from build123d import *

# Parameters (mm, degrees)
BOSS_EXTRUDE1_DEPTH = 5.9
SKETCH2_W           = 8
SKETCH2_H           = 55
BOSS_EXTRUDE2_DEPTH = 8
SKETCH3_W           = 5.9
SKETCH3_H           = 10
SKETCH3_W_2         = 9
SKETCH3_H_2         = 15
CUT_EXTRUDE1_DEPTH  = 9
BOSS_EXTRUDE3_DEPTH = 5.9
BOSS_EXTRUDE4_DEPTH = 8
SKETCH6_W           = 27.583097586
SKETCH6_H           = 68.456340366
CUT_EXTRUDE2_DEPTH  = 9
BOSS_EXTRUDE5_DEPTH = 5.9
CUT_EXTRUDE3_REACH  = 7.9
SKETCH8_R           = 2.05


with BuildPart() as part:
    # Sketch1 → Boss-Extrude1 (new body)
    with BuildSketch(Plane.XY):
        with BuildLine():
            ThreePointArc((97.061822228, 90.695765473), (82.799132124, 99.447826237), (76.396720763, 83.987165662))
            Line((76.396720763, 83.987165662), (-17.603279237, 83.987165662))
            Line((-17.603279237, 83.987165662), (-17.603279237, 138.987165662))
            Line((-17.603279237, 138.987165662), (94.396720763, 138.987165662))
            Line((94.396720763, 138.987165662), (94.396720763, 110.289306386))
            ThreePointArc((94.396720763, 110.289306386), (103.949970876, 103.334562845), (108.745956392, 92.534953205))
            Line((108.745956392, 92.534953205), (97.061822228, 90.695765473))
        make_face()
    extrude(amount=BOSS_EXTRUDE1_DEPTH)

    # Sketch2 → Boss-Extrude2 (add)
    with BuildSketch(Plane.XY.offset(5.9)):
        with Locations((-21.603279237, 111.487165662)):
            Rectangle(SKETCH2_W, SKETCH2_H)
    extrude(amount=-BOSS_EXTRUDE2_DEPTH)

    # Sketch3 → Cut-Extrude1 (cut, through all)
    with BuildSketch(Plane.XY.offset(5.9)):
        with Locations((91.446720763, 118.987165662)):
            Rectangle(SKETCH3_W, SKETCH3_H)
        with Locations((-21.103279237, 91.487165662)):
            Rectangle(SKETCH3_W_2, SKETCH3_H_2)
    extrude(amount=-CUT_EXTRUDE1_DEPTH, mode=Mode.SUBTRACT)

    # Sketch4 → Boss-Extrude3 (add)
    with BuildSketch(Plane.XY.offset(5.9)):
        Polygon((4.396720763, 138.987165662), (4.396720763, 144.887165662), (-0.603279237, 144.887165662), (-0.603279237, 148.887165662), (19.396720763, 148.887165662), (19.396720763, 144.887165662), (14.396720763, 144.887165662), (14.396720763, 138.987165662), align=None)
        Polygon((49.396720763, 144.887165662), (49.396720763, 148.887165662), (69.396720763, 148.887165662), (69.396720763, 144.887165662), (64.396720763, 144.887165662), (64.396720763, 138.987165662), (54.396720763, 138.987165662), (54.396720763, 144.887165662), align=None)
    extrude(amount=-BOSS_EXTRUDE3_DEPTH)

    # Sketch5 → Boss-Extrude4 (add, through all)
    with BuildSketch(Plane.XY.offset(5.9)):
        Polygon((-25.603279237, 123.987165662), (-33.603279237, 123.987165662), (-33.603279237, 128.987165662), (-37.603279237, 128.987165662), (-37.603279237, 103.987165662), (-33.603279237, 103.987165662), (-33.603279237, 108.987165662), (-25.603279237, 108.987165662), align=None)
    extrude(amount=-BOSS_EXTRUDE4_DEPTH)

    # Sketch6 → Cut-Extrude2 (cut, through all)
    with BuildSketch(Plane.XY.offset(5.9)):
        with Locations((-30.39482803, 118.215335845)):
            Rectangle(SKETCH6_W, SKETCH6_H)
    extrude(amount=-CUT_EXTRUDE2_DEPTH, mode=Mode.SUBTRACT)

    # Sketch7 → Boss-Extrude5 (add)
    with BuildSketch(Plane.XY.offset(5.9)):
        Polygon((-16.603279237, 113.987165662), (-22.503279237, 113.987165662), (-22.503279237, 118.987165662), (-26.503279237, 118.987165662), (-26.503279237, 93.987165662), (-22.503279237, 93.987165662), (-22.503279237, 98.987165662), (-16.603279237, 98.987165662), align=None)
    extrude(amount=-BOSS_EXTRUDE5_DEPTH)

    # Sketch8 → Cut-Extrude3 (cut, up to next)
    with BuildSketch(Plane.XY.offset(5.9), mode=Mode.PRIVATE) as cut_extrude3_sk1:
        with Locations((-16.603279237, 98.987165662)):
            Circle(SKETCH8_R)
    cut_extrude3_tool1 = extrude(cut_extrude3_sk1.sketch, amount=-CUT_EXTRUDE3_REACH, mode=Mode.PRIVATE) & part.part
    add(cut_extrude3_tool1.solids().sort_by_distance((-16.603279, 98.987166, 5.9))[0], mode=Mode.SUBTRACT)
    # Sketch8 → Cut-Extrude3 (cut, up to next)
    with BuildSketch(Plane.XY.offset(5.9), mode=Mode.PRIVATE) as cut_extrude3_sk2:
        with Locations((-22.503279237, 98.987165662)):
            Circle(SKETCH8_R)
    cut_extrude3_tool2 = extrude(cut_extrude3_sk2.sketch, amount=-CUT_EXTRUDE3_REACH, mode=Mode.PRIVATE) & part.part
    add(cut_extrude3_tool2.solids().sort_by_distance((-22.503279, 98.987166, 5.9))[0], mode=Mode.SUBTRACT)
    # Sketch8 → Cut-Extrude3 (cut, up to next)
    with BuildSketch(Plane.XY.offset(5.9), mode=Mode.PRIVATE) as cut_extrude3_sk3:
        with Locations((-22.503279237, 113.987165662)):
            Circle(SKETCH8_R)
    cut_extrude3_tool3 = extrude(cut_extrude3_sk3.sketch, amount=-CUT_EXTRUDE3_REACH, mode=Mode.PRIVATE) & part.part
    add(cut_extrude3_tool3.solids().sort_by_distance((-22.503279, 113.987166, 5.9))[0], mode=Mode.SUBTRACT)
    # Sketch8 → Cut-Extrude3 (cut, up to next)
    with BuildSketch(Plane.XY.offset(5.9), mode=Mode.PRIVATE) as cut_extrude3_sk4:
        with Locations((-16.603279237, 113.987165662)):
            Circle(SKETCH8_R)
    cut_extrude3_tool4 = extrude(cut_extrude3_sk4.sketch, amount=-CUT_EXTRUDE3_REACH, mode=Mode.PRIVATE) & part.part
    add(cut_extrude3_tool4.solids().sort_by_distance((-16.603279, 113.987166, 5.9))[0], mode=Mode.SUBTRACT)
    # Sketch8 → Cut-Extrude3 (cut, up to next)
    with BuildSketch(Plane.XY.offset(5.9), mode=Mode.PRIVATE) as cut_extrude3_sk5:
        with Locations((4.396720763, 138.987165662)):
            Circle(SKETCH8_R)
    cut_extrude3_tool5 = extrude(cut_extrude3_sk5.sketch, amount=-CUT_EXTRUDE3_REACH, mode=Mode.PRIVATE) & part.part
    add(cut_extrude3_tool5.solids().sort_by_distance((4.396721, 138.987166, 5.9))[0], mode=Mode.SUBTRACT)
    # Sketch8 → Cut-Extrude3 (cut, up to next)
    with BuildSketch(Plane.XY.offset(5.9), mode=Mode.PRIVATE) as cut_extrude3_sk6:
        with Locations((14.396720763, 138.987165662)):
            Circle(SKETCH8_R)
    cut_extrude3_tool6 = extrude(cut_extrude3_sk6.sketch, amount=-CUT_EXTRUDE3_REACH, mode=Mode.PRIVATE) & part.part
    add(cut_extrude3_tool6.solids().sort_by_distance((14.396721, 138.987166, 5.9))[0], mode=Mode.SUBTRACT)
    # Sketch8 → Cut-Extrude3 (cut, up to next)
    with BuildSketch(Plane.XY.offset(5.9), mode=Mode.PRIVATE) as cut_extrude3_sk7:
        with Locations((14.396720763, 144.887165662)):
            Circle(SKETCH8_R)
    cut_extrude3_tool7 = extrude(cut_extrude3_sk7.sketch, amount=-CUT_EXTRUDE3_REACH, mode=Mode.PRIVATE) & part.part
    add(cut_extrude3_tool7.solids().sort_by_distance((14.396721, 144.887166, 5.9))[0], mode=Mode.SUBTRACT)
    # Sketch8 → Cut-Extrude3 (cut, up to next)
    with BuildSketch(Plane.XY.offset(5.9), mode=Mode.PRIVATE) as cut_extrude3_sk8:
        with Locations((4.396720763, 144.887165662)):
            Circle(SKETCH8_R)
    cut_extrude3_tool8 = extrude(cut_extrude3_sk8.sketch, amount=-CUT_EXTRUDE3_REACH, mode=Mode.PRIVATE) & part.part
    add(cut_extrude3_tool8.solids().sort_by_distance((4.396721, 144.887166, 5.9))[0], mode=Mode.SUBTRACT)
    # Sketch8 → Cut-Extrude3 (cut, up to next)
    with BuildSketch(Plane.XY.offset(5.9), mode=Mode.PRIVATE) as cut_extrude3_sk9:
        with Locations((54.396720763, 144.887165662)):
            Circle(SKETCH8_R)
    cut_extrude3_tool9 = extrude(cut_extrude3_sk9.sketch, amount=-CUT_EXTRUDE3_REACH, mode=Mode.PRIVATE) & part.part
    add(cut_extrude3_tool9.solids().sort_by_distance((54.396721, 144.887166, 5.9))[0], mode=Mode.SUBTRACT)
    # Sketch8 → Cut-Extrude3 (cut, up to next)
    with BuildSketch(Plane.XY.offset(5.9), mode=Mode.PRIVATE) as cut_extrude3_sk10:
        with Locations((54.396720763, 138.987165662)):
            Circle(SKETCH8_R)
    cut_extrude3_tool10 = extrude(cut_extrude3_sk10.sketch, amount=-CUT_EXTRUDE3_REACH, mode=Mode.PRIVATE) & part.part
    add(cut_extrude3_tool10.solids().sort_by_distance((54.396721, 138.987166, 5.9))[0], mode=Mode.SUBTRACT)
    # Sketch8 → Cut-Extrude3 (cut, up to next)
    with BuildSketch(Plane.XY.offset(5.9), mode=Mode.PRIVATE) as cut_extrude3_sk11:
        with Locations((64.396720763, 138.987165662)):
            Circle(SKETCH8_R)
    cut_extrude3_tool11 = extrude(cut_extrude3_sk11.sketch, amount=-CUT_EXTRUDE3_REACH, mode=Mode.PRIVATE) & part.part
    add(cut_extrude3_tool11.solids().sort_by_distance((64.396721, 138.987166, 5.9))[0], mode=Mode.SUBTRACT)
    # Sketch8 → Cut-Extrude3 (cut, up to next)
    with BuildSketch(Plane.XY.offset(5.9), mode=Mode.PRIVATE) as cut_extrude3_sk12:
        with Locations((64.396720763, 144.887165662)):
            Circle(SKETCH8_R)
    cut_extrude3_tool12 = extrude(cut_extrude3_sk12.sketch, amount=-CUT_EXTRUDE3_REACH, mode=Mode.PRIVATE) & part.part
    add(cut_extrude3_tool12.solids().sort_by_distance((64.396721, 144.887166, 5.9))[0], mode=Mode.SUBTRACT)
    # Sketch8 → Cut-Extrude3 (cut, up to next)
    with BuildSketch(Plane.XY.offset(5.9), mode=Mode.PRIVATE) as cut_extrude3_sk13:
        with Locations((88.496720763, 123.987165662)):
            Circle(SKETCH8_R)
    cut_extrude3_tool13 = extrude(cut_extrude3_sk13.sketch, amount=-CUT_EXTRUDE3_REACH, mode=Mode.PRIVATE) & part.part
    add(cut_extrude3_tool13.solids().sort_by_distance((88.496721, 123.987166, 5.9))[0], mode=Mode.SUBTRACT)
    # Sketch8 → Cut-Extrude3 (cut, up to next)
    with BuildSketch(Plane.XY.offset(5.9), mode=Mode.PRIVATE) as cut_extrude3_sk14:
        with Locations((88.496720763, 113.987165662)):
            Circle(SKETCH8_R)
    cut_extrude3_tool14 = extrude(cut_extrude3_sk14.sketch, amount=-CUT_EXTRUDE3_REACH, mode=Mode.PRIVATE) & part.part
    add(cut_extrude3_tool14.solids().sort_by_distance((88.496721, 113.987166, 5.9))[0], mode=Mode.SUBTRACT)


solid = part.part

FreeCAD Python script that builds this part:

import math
import FreeCAD as App
import Part
import Sketcher

V = App.Vector


def add_polygon(sketch, points):
    """Adds a closed chain of lines whose ends are joined by coincident constraints."""
    first, n = sketch.GeometryCount, len(points)
    for a, b in zip(points, points[1:] + points[:1]):
        sketch.addGeometry(Part.LineSegment(App.Vector(*a, 0), App.Vector(*b, 0)), False)
    for i in range(n):
        sketch.addConstraint(Sketcher.Constraint("Coincident", first + i, 2, first + (i + 1) % n, 1))

doc = App.newDocument("Part")
body = doc.addObject("PartDesign::Body", "Body")

sketch1 = doc.addObject("Sketcher::SketchObject", "Sketch")
body.addObject(sketch1)
sketch1.AttachmentSupport = (doc.XY_Plane, [""])
sketch1.MapMode = "FlatFace"
sketch1.addGeometry(Part.ArcOfCircle(Part.Circle(V(86, 89, 0), V(0, 0, 1), 11), math.radians(9), math.radians(207)), False)
sketch1.addGeometry(Part.LineSegment(V(97, 91, 0), V(109, 93, 0)), False)
sketch1.addGeometry(Part.ArcOfCircle(Part.Circle(V(86, 89, 0), V(0, 0, 1), 23), math.radians(9), math.radians(69)), False)
sketch1.addGeometry(Part.LineSegment(V(94, 110, 0), V(94, 139, 0)), False)
sketch1.addGeometry(Part.LineSegment(V(94, 139, 0), V(-18, 139, 0)), False)
sketch1.addGeometry(Part.LineSegment(V(-18, 139, 0), V(-18, 84, 0)), False)
sketch1.addGeometry(Part.LineSegment(V(-18, 84, 0), V(76, 84, 0)), False)
sketch1.addConstraint(Sketcher.Constraint("Coincident", 0, 1, 1, 1))
sketch1.addConstraint(Sketcher.Constraint("Coincident", 1, 2, 2, 1))
sketch1.addConstraint(Sketcher.Constraint("Coincident", 2, 2, 3, 1))
sketch1.addConstraint(Sketcher.Constraint("Coincident", 3, 2, 4, 1))
sketch1.addConstraint(Sketcher.Constraint("Coincident", 4, 2, 5, 1))
sketch1.addConstraint(Sketcher.Constraint("Coincident", 5, 2, 6, 1))
sketch1.addConstraint(Sketcher.Constraint("Coincident", 6, 2, 0, 2))
sketch1.addConstraint(Sketcher.Constraint("Vertical", 3))
sketch1.addConstraint(Sketcher.Constraint("Horizontal", 4))
sketch1.addConstraint(Sketcher.Constraint("Vertical", 5))
sketch1.addConstraint(Sketcher.Constraint("Horizontal", 6))
sketch1.addConstraint(Sketcher.Constraint("Coincident", 2, 3, 0, 3))
sketch1.addConstraint(Sketcher.Constraint("Radius", 0, 11.0))
sketch1.addConstraint(Sketcher.Constraint("DistanceX", 4, 2, 4, 1, 112.0))
sketch1.addConstraint(Sketcher.Constraint("DistanceX", 6, 1, 6, 2, 94.0))
sketch1.addConstraint(Sketcher.Constraint("DistanceY", 5, 2, 5, 1, 55.0))
sketch1.addConstraint(Sketcher.Constraint("Radius", 2, 22.828001))
sketch1.addConstraint(Sketcher.Constraint("DistanceY", 3, 1, 3, 2, 28.697859))
sketch1.addConstraint(Sketcher.Constraint("DistanceX", 2, 2, 0, 1, 2.665101))
sketch1.addConstraint(Sketcher.Constraint("DistanceX", -1, 1, 2, 2, 94.396721))
sketch1.addConstraint(Sketcher.Constraint("DistanceX", 0, 3, 1, 2, 22.550339))
sketch1.addConstraint(Sketcher.Constraint("DistanceY", -1, 1, 0, 3, 88.985327))
pad1 = doc.addObject("PartDesign::Pad", "Pad")
body.addObject(pad1)
pad1.Profile = sketch1
pad1.Length = 5.9

sketch2 = doc.addObject("Sketcher::SketchObject", "Sketch001")
body.addObject(sketch2)
sketch2.AttachmentSupport = (doc.XY_Plane, [""])
sketch2.MapMode = "FlatFace"
sketch2.AttachmentOffset = App.Placement(V(0, 0, 5.9), App.Rotation())
add_polygon(sketch2, [(-26, 139), (-26, 84), (-18, 84), (-18, 139)])
sketch2.addConstraint(Sketcher.Constraint("Vertical", 0))
sketch2.addConstraint(Sketcher.Constraint("Horizontal", 1))
sketch2.addConstraint(Sketcher.Constraint("Vertical", 2))
sketch2.addConstraint(Sketcher.Constraint("Horizontal", 3))
sketch2.addConstraint(Sketcher.Constraint("DistanceX", 1, 1, 1, 2, 8.0))
sketch2.addConstraint(Sketcher.Constraint("DistanceY", 0, 2, 0, 1, 55.0))
sketch2.addConstraint(Sketcher.Constraint("DistanceX", 0, 2, -1, 1, 25.603279))
sketch2.addConstraint(Sketcher.Constraint("DistanceY", -1, 1, 0, 2, 83.987166))
pad2 = doc.addObject("PartDesign::Pad", "Pad001")
body.addObject(pad2)
pad2.Profile = sketch2
pad2.Length = 8
pad2.Reversed = True

sketch3 = doc.addObject("Sketcher::SketchObject", "Sketch002")
body.addObject(sketch3)
sketch3.AttachmentSupport = (doc.XY_Plane, [""])
sketch3.MapMode = "FlatFace"
sketch3.AttachmentOffset = App.Placement(V(0, 0, 5.9), App.Rotation())
add_polygon(sketch3, [(88, 124), (88, 114), (94, 114), (94, 124)])
add_polygon(sketch3, [(-26, 99), (-26, 84), (-17, 84), (-17, 99)])
sketch3.addConstraint(Sketcher.Constraint("Vertical", 0))
sketch3.addConstraint(Sketcher.Constraint("Horizontal", 1))
sketch3.addConstraint(Sketcher.Constraint("Vertical", 2))
sketch3.addConstraint(Sketcher.Constraint("Horizontal", 3))
sketch3.addConstraint(Sketcher.Constraint("Vertical", 4))
sketch3.addConstraint(Sketcher.Constraint("Horizontal", 5))
sketch3.addConstraint(Sketcher.Constraint("Vertical", 6))
sketch3.addConstraint(Sketcher.Constraint("Horizontal", 7))
sketch3.addConstraint(Sketcher.Constraint("DistanceX", 5, 1, 5, 2, 9.0))
sketch3.addConstraint(Sketcher.Constraint("DistanceY", 0, 2, 0, 1, 10.0))
sketch3.addConstraint(Sketcher.Constraint("DistanceY", 4, 2, 4, 1, 15.0))
sketch3.addConstraint(Sketcher.Constraint("DistanceX", 1, 1, 1, 2, 5.9))
sketch3.addConstraint(Sketcher.Constraint("DistanceY", 4, 2, 0, 2, 30.0))
sketch3.addConstraint(Sketcher.Constraint("DistanceX", 4, 2, 1, 2, 120.0))
sketch3.addConstraint(Sketcher.Constraint("DistanceX", -1, 1, 0, 2, 88.496721))
sketch3.addConstraint(Sketcher.Constraint("DistanceY", -1, 1, 0, 2, 113.987166))
pocket1 = doc.addObject("PartDesign::Pocket", "Pocket")
body.addObject(pocket1)
pocket1.Profile = sketch3
pocket1.Type = "ThroughAll"

sketch4 = doc.addObject("Sketcher::SketchObject", "Sketch003")
body.addObject(sketch4)
sketch4.AttachmentSupport = (doc.XY_Plane, [""])
sketch4.MapMode = "FlatFace"
sketch4.AttachmentOffset = App.Placement(V(0, 0, 5.9), App.Rotation())
add_polygon(sketch4, [(4.4, 144.9), (4.4, 139), (14.4, 139), (14.4, 144.9), (19.4, 144.9), (19.4, 148.9), (-0.6, 148.9), (-0.6, 144.9)])
add_polygon(sketch4, [(49.4, 148.9), (49.4, 144.9), (54.4, 144.9), (54.4, 139), (64.4, 139), (64.4, 144.9), (69.4, 144.9), (69.4, 148.9)])
sketch4.addConstraint(Sketcher.Constraint("Vertical", 0))
sketch4.addConstraint(Sketcher.Constraint("Horizontal", 1))
sketch4.addConstraint(Sketcher.Constraint("Vertical", 2))
sketch4.addConstraint(Sketcher.Constraint("Horizontal", 3))
sketch4.addConstraint(Sketcher.Constraint("Vertical", 4))
sketch4.addConstraint(Sketcher.Constraint("Horizontal", 5))
sketch4.addConstraint(Sketcher.Constraint("Vertical", 6))
sketch4.addConstraint(Sketcher.Constraint("Horizontal", 7))
sketch4.addConstraint(Sketcher.Constraint("Vertical", 8))
sketch4.addConstraint(Sketcher.Constraint("Horizontal", 9))
sketch4.addConstraint(Sketcher.Constraint("Vertical", 10))
sketch4.addConstraint(Sketcher.Constraint("Horizontal", 11))
sketch4.addConstraint(Sketcher.Constraint("Vertical", 12))
sketch4.addConstraint(Sketcher.Constraint("Horizontal", 13))
sketch4.addConstraint(Sketcher.Constraint("Vertical", 14))
sketch4.addConstraint(Sketcher.Constraint("Horizontal", 15))
sketch4.addConstraint(Sketcher.Constraint("Horizontal", 3, 2, 6, 2))
sketch4.addConstraint(Sketcher.Constraint("Horizontal", 7, 2, 8, 2))
sketch4.addConstraint(Sketcher.Constraint("Horizontal", 1, 2, 10, 2))
sketch4.addConstraint(Sketcher.Constraint("Horizontal", 9, 2, 12, 2))
sketch4.addConstraint(Sketcher.Constraint("Horizontal", 5, 2, 14, 2))
sketch4.addConstraint(Sketcher.Constraint("Equal", 3, 7))
sketch4.addConstraint(Sketcher.Constraint("Equal", 7, 9))
sketch4.addConstraint(Sketcher.Constraint("Equal", 1, 11))
sketch4.addConstraint(Sketcher.Constraint("Equal", 9, 13))
sketch4.addConstraint(Sketcher.Constraint("DistanceX", 1, 1, 1, 2, 10.0))
sketch4.addConstraint(Sketcher.Constraint("DistanceX", 3, 1, 3, 2, 5.0))
sketch4.addConstraint(Sketcher.Constraint("DistanceY", 4, 1, 4, 2, 4.0))
sketch4.addConstraint(Sketcher.Constraint("DistanceY", 0, 2, 0, 1, 5.9))
sketch4.addConstraint(Sketcher.Constraint("DistanceX", 3, 2, 8, 2, 30.0))
sketch4.addConstraint(Sketcher.Constraint("DistanceX", -1, 1, 0, 2, 4.396721))
sketch4.addConstraint(Sketcher.Constraint("DistanceY", -1, 1, 0, 2, 138.987166))
pad3 = doc.addObject("PartDesign::Pad", "Pad002")
body.addObject(pad3)
pad3.Profile = sketch4
pad3.Length = 5.9
pad3.Reversed = True

sketch5 = doc.addObject("Sketcher::SketchObject", "Sketch004")
body.addObject(sketch5)
sketch5.AttachmentSupport = (doc.XY_Plane, [""])
sketch5.MapMode = "FlatFace"
sketch5.AttachmentOffset = App.Placement(V(0, 0, 5.9), App.Rotation())
add_polygon(sketch5, [(-25.6, 124), (-33.6, 124), (-33.6, 129), (-37.6, 129), (-37.6, 104), (-33.6, 104), (-33.6, 109), (-25.6, 109)])
sketch5.addConstraint(Sketcher.Constraint("Horizontal", 0))
sketch5.addConstraint(Sketcher.Constraint("Vertical", 1))
sketch5.addConstraint(Sketcher.Constraint("Horizontal", 2))
sketch5.addConstraint(Sketcher.Constraint("Vertical", 3))
sketch5.addConstraint(Sketcher.Constraint("Horizontal", 4))
sketch5.addConstraint(Sketcher.Constraint("Vertical", 5))
sketch5.addConstraint(Sketcher.Constraint("Horizontal", 6))
sketch5.addConstraint(Sketcher.Constraint("Vertical", 7))
sketch5.addConstraint(Sketcher.Constraint("Vertical", 1, 2, 4, 2))
sketch5.addConstraint(Sketcher.Constraint("Equal", 1, 5))
sketch5.addConstraint(Sketcher.Constraint("DistanceX", 0, 2, 0, 1, 8.0))
sketch5.addConstraint(Sketcher.Constraint("DistanceX", 2, 2, 2, 1, 4.0))
sketch5.addConstraint(Sketcher.Constraint("DistanceY", 1, 1, 1, 2, 5.0))
sketch5.addConstraint(Sketcher.Constraint("DistanceY", 3, 2, 3, 1, 25.0))
sketch5.addConstraint(Sketcher.Constraint("DistanceX", 0, 2, -1, 1, 33.603279))
sketch5.addConstraint(Sketcher.Constraint("DistanceY", -1, 1, 0, 2, 123.987166))
pad4 = doc.addObject("PartDesign::Pad", "Pad003")
body.addObject(pad4)
pad4.Profile = sketch5
pad4.Length = 8
pad4.Reversed = True

sketch6 = doc.addObject("Sketcher::SketchObject", "Sketch005")
body.addObject(sketch6)
sketch6.AttachmentSupport = (doc.XY_Plane, [""])
sketch6.MapMode = "FlatFace"
sketch6.AttachmentOffset = App.Placement(V(0, 0, 5.9), App.Rotation())
add_polygon(sketch6, [(-44, 152), (-44, 84), (-17, 84), (-17, 152)])
sketch6.addConstraint(Sketcher.Constraint("Vertical", 0))
sketch6.addConstraint(Sketcher.Constraint("Horizontal", 1))
sketch6.addConstraint(Sketcher.Constraint("Vertical", 2))
sketch6.addConstraint(Sketcher.Constraint("Horizontal", 3))
sketch6.addConstraint(Sketcher.Constraint("DistanceY", 0, 2, 0, 1, 68.45634))
sketch6.addConstraint(Sketcher.Constraint("DistanceX", 1, 1, 1, 2, 27.583098))
sketch6.addConstraint(Sketcher.Constraint("DistanceX", 1, 2, -1, 1, 16.603279))
sketch6.addConstraint(Sketcher.Constraint("DistanceY", -1, 1, 0, 2, 83.987166))
pocket2 = doc.addObject("PartDesign::Pocket", "Pocket001")
body.addObject(pocket2)
pocket2.Profile = sketch6
pocket2.Type = "ThroughAll"

sketch7 = doc.addObject("Sketcher::SketchObject", "Sketch006")
body.addObject(sketch7)
sketch7.AttachmentSupport = (doc.XY_Plane, [""])
sketch7.MapMode = "FlatFace"
sketch7.AttachmentOffset = App.Placement(V(0, 0, 5.9), App.Rotation())
add_polygon(sketch7, [(-16.6, 114), (-22.5, 114), (-22.5, 119), (-26.5, 119), (-26.5, 94), (-22.5, 94), (-22.5, 99), (-16.6, 99)])
sketch7.addConstraint(Sketcher.Constraint("Horizontal", 0))
sketch7.addConstraint(Sketcher.Constraint("Vertical", 1))
sketch7.addConstraint(Sketcher.Constraint("Horizontal", 2))
sketch7.addConstraint(Sketcher.Constraint("Vertical", 3))
sketch7.addConstraint(Sketcher.Constraint("Horizontal", 4))
sketch7.addConstraint(Sketcher.Constraint("Vertical", 5))
sketch7.addConstraint(Sketcher.Constraint("Horizontal", 6))
sketch7.addConstraint(Sketcher.Constraint("Vertical", 7))
sketch7.addConstraint(Sketcher.Constraint("Vertical", 1, 2, 4, 2))
sketch7.addConstraint(Sketcher.Constraint("Equal", 1, 5))
sketch7.addConstraint(Sketcher.Constraint("DistanceX", 2, 2, 2, 1, 4.0))
sketch7.addConstraint(Sketcher.Constraint("DistanceY", 1, 1, 1, 2, 5.0))
sketch7.addConstraint(Sketcher.Constraint("DistanceY", 3, 2, 3, 1, 25.0))
sketch7.addConstraint(Sketcher.Constraint("DistanceX", 0, 2, 0, 1, 5.9))
sketch7.addConstraint(Sketcher.Constraint("DistanceX", 0, 2, -1, 1, 22.503279))
sketch7.addConstraint(Sketcher.Constraint("DistanceY", -1, 1, 0, 2, 113.987166))
pad5 = doc.addObject("PartDesign::Pad", "Pad004")
body.addObject(pad5)
pad5.Profile = sketch7
pad5.Length = 5.9
pad5.Reversed = True

sketch8 = doc.addObject("Sketcher::SketchObject", "Sketch007")
body.addObject(sketch8)
sketch8.AttachmentSupport = (doc.XY_Plane, [""])
sketch8.MapMode = "FlatFace"
sketch8.AttachmentOffset = App.Placement(V(0, 0, 5.9), App.Rotation())
sketch8.addGeometry(Part.Circle(V(-16.6, 99, 0), V(0, 0, 1), 2), False)
sketch8.addConstraint(Sketcher.Constraint("Diameter", 0, 4.1))
sketch8.addConstraint(Sketcher.Constraint("DistanceX", 0, 3, -1, 1, 16.603279))
sketch8.addConstraint(Sketcher.Constraint("DistanceY", -1, 1, 0, 3, 98.987166))
pocket3 = doc.addObject("PartDesign::Pocket", "Pocket002")
body.addObject(pocket3)
pocket3.Profile = sketch8
pocket3.Type = "UpToFirst"

sketch9 = doc.addObject("Sketcher::SketchObject", "Sketch008")
body.addObject(sketch9)
sketch9.AttachmentSupport = (doc.XY_Plane, [""])
sketch9.MapMode = "FlatFace"
sketch9.AttachmentOffset = App.Placement(V(0, 0, 5.9), App.Rotation())
sketch9.addGeometry(Part.Circle(V(-22.5, 99, 0), V(0, 0, 1), 2), False)
sketch9.addConstraint(Sketcher.Constraint("Diameter", 0, 4.1))
sketch9.addConstraint(Sketcher.Constraint("DistanceX", 0, 3, -1, 1, 22.503279))
sketch9.addConstraint(Sketcher.Constraint("DistanceY", -1, 1, 0, 3, 98.987166))
pocket4 = doc.addObject("PartDesign::Pocket", "Pocket003")
body.addObject(pocket4)
pocket4.Profile = sketch9
pocket4.Type = "UpToFirst"

sketch10 = doc.addObject("Sketcher::SketchObject", "Sketch009")
body.addObject(sketch10)
sketch10.AttachmentSupport = (doc.XY_Plane, [""])
sketch10.MapMode = "FlatFace"
sketch10.AttachmentOffset = App.Placement(V(0, 0, 5.9), App.Rotation())
sketch10.addGeometry(Part.Circle(V(-22.5, 114, 0), V(0, 0, 1), 2), False)
sketch10.addConstraint(Sketcher.Constraint("Diameter", 0, 4.1))
sketch10.addConstraint(Sketcher.Constraint("DistanceX", 0, 3, -1, 1, 22.503279))
sketch10.addConstraint(Sketcher.Constraint("DistanceY", -1, 1, 0, 3, 113.987166))
pocket5 = doc.addObject("PartDesign::Pocket", "Pocket004")
body.addObject(pocket5)
pocket5.Profile = sketch10
pocket5.Type = "UpToFirst"

sketch11 = doc.addObject("Sketcher::SketchObject", "Sketch010")
body.addObject(sketch11)
sketch11.AttachmentSupport = (doc.XY_Plane, [""])
sketch11.MapMode = "FlatFace"
sketch11.AttachmentOffset = App.Placement(V(0, 0, 5.9), App.Rotation())
sketch11.addGeometry(Part.Circle(V(-16.6, 114, 0), V(0, 0, 1), 2), False)
sketch11.addConstraint(Sketcher.Constraint("Diameter", 0, 4.1))
sketch11.addConstraint(Sketcher.Constraint("DistanceX", 0, 3, -1, 1, 16.603279))
sketch11.addConstraint(Sketcher.Constraint("DistanceY", -1, 1, 0, 3, 113.987166))
pocket6 = doc.addObject("PartDesign::Pocket", "Pocket005")
body.addObject(pocket6)
pocket6.Profile = sketch11
pocket6.Type = "UpToFirst"

sketch12 = doc.addObject("Sketcher::SketchObject", "Sketch011")
body.addObject(sketch12)
sketch12.AttachmentSupport = (doc.XY_Plane, [""])
sketch12.MapMode = "FlatFace"
sketch12.AttachmentOffset = App.Placement(V(0, 0, 5.9), App.Rotation())
sketch12.addGeometry(Part.Circle(V(4.4, 139, 0), V(0, 0, 1), 2), False)
sketch12.addConstraint(Sketcher.Constraint("Diameter", 0, 4.1))
sketch12.addConstraint(Sketcher.Constraint("DistanceX", -1, 1, 0, 3, 4.396721))
sketch12.addConstraint(Sketcher.Constraint("DistanceY", -1, 1, 0, 3, 138.987166))
pocket7 = doc.addObject("PartDesign::Pocket", "Pocket006")
body.addObject(pocket7)
pocket7.Profile = sketch12
pocket7.Type = "UpToFirst"

sketch13 = doc.addObject("Sketcher::SketchObject", "Sketch012")
body.addObject(sketch13)
sketch13.AttachmentSupport = (doc.XY_Plane, [""])
sketch13.MapMode = "FlatFace"
sketch13.AttachmentOffset = App.Placement(V(0, 0, 5.9), App.Rotation())
sketch13.addGeometry(Part.Circle(V(14.4, 139, 0), V(0, 0, 1), 2), False)
sketch13.addConstraint(Sketcher.Constraint("Diameter", 0, 4.1))
sketch13.addConstraint(Sketcher.Constraint("DistanceX", -1, 1, 0, 3, 14.396721))
sketch13.addConstraint(Sketcher.Constraint("DistanceY", -1, 1, 0, 3, 138.987166))
pocket8 = doc.addObject("PartDesign::Pocket", "Pocket007")
body.addObject(pocket8)
pocket8.Profile = sketch13
pocket8.Type = "UpToFirst"

sketch14 = doc.addObject("Sketcher::SketchObject", "Sketch013")
body.addObject(sketch14)
sketch14.AttachmentSupport = (doc.XY_Plane, [""])
sketch14.MapMode = "FlatFace"
sketch14.AttachmentOffset = App.Placement(V(0, 0, 5.9), App.Rotation())
sketch14.addGeometry(Part.Circle(V(14.4, 144.9, 0), V(0, 0, 1), 2), False)
sketch14.addConstraint(Sketcher.Constraint("Diameter", 0, 4.1))
sketch14.addConstraint(Sketcher.Constraint("DistanceX", -1, 1, 0, 3, 14.396721))
sketch14.addConstraint(Sketcher.Constraint("DistanceY", -1, 1, 0, 3, 144.887166))
pocket9 = doc.addObject("PartDesign::Pocket", "Pocket008")
body.addObject(pocket9)
pocket9.Profile = sketch14
pocket9.Type = "UpToFirst"

sketch15 = doc.addObject("Sketcher::SketchObject", "Sketch014")
body.addObject(sketch15)
sketch15.AttachmentSupport = (doc.XY_Plane, [""])
sketch15.MapMode = "FlatFace"
sketch15.AttachmentOffset = App.Placement(V(0, 0, 5.9), App.Rotation())
sketch15.addGeometry(Part.Circle(V(4.4, 144.9, 0), V(0, 0, 1), 2), False)
sketch15.addConstraint(Sketcher.Constraint("Diameter", 0, 4.1))
sketch15.addConstraint(Sketcher.Constraint("DistanceX", -1, 1, 0, 3, 4.396721))
sketch15.addConstraint(Sketcher.Constraint("DistanceY", -1, 1, 0, 3, 144.887166))
pocket10 = doc.addObject("PartDesign::Pocket", "Pocket009")
body.addObject(pocket10)
pocket10.Profile = sketch15
pocket10.Type = "UpToFirst"

sketch16 = doc.addObject("Sketcher::SketchObject", "Sketch015")
body.addObject(sketch16)
sketch16.AttachmentSupport = (doc.XY_Plane, [""])
sketch16.MapMode = "FlatFace"
sketch16.AttachmentOffset = App.Placement(V(0, 0, 5.9), App.Rotation())
sketch16.addGeometry(Part.Circle(V(54.4, 144.9, 0), V(0, 0, 1), 2), False)
sketch16.addConstraint(Sketcher.Constraint("Diameter", 0, 4.1))
sketch16.addConstraint(Sketcher.Constraint("DistanceX", -1, 1, 0, 3, 54.396721))
sketch16.addConstraint(Sketcher.Constraint("DistanceY", -1, 1, 0, 3, 144.887166))
pocket11 = doc.addObject("PartDesign::Pocket", "Pocket010")
body.addObject(pocket11)
pocket11.Profile = sketch16
pocket11.Type = "UpToFirst"

sketch17 = doc.addObject("Sketcher::SketchObject", "Sketch016")
body.addObject(sketch17)
sketch17.AttachmentSupport = (doc.XY_Plane, [""])
sketch17.MapMode = "FlatFace"
sketch17.AttachmentOffset = App.Placement(V(0, 0, 5.9), App.Rotation())
sketch17.addGeometry(Part.Circle(V(54.4, 139, 0), V(0, 0, 1), 2), False)
sketch17.addConstraint(Sketcher.Constraint("Diameter", 0, 4.1))
sketch17.addConstraint(Sketcher.Constraint("DistanceX", -1, 1, 0, 3, 54.396721))
sketch17.addConstraint(Sketcher.Constraint("DistanceY", -1, 1, 0, 3, 138.987166))
pocket12 = doc.addObject("PartDesign::Pocket", "Pocket011")
body.addObject(pocket12)
pocket12.Profile = sketch17
pocket12.Type = "UpToFirst"

sketch18 = doc.addObject("Sketcher::SketchObject", "Sketch017")
body.addObject(sketch18)
sketch18.AttachmentSupport = (doc.XY_Plane, [""])
sketch18.MapMode = "FlatFace"
sketch18.AttachmentOffset = App.Placement(V(0, 0, 5.9), App.Rotation())
sketch18.addGeometry(Part.Circle(V(64.4, 139, 0), V(0, 0, 1), 2), False)
sketch18.addConstraint(Sketcher.Constraint("Diameter", 0, 4.1))
sketch18.addConstraint(Sketcher.Constraint("DistanceX", -1, 1, 0, 3, 64.396721))
sketch18.addConstraint(Sketcher.Constraint("DistanceY", -1, 1, 0, 3, 138.987166))
pocket13 = doc.addObject("PartDesign::Pocket", "Pocket012")
body.addObject(pocket13)
pocket13.Profile = sketch18
pocket13.Type = "UpToFirst"

sketch19 = doc.addObject("Sketcher::SketchObject", "Sketch018")
body.addObject(sketch19)
sketch19.AttachmentSupport = (doc.XY_Plane, [""])
sketch19.MapMode = "FlatFace"
sketch19.AttachmentOffset = App.Placement(V(0, 0, 5.9), App.Rotation())
sketch19.addGeometry(Part.Circle(V(64.4, 144.9, 0), V(0, 0, 1), 2), False)
sketch19.addConstraint(Sketcher.Constraint("Diameter", 0, 4.1))
sketch19.addConstraint(Sketcher.Constraint("DistanceX", -1, 1, 0, 3, 64.396721))
sketch19.addConstraint(Sketcher.Constraint("DistanceY", -1, 1, 0, 3, 144.887166))
pocket14 = doc.addObject("PartDesign::Pocket", "Pocket013")
body.addObject(pocket14)
pocket14.Profile = sketch19
pocket14.Type = "UpToFirst"

sketch20 = doc.addObject("Sketcher::SketchObject", "Sketch019")
body.addObject(sketch20)
sketch20.AttachmentSupport = (doc.XY_Plane, [""])
sketch20.MapMode = "FlatFace"
sketch20.AttachmentOffset = App.Placement(V(0, 0, 5.9), App.Rotation())
sketch20.addGeometry(Part.Circle(V(88.5, 124, 0), V(0, 0, 1), 2), False)
sketch20.addConstraint(Sketcher.Constraint("Diameter", 0, 4.1))
sketch20.addConstraint(Sketcher.Constraint("DistanceX", -1, 1, 0, 3, 88.496721))
sketch20.addConstraint(Sketcher.Constraint("DistanceY", -1, 1, 0, 3, 123.987166))
pocket15 = doc.addObject("PartDesign::Pocket", "Pocket014")
body.addObject(pocket15)
pocket15.Profile = sketch20
pocket15.Type = "UpToFirst"

sketch21 = doc.addObject("Sketcher::SketchObject", "Sketch020")
body.addObject(sketch21)
sketch21.AttachmentSupport = (doc.XY_Plane, [""])
sketch21.MapMode = "FlatFace"
sketch21.AttachmentOffset = App.Placement(V(0, 0, 5.9), App.Rotation())
sketch21.addGeometry(Part.Circle(V(88.5, 114, 0), V(0, 0, 1), 2), False)
sketch21.addConstraint(Sketcher.Constraint("Diameter", 0, 4.1))
sketch21.addConstraint(Sketcher.Constraint("DistanceX", -1, 1, 0, 3, 88.496721))
sketch21.addConstraint(Sketcher.Constraint("DistanceY", -1, 1, 0, 3, 113.987166))
pocket16 = doc.addObject("PartDesign::Pocket", "Pocket015")
body.addObject(pocket16)
pocket16.Profile = sketch21
pocket16.Type = "UpToFirst"

doc.recompute()
